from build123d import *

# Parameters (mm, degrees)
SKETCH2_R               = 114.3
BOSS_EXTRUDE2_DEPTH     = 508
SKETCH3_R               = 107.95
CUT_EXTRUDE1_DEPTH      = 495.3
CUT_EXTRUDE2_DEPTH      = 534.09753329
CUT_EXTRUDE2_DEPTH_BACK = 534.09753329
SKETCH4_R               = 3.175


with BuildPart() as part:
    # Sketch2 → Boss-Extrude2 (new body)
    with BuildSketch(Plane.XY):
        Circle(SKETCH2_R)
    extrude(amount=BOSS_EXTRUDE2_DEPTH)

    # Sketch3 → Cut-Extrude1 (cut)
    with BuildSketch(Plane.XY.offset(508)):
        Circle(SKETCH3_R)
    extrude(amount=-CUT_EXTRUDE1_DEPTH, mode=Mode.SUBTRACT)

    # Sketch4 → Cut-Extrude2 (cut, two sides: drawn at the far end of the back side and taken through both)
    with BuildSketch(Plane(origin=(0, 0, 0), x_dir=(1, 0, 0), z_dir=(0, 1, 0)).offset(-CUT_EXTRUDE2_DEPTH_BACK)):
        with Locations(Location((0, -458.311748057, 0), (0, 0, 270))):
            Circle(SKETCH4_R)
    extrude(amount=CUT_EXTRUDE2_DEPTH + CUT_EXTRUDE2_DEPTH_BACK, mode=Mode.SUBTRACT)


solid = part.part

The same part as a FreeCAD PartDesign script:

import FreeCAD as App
import Part
import Sketcher
Q = App.Units.Quantity

doc = App.newDocument("Part")
params = doc.addObject("Spreadsheet::Sheet", "Params")
for row, (alias, value) in enumerate([
    ("sketch1_diameter", "9 in"),
    ("pad1_length", "20 in"),
    ("sketch2_diameter", "8.5 in"),
    ("pocket1_length", "19.5 in"),
    ("sketch3_diameter", "0.25 in"),
], start=1):
    params.set(f"A{row}", alias)
    params.set(f"B{row}", "=" + value)
    params.setAlias(f"B{row}", alias)

body = doc.addObject("PartDesign::Body", "Body")

# Sketch on XY plane
sketch1 = body.newObject("Sketcher::SketchObject", "Sketch")
sketch1.AttachmentSupport = (doc.getObject("XY_Plane"), [""])
sketch1.MapMode = "FlatFace"
sketch1.addGeometry(Part.Circle(App.Vector(0, 0, 0), App.Vector(0, 0, 1), 114), False)
sketch1.addConstraint([
    Sketcher.Constraint("Coincident", 0, 3, -1, 1),
    Sketcher.Constraint("Diameter", 0, Q("9 in")),
])
sketch1.setExpression("Constraints[1]", "Params.sketch1_diameter")
pad1 = body.newObject("PartDesign::Pad", "Pad")
pad1.Profile = sketch1
pad1.setExpression("Length", "Params.pad1_length")

# Sketch on XY plane
sketch2 = body.newObject("Sketcher::SketchObject", "Sketch001")
sketch2.AttachmentSupport = (doc.getObject("XY_Plane"), [""])
sketch2.MapMode = "FlatFace"
sketch2.AttachmentOffset = App.Placement(App.Vector(0, 0, 20 * 25.4), App.Rotation())
sketch2.addGeometry(Part.Circle(App.Vector(0, 0, 0), App.Vector(0, 0, 1), 108), False)
sketch2.addConstraint([
    Sketcher.Constraint("Coincident", 0, 3, -1, 1),
    Sketcher.Constraint("Diameter", 0, Q("8.5 in")),
])
sketch2.setExpression("Constraints[1]", "Params.sketch2_diameter")
pocket1 = body.newObject("PartDesign::Pocket", "Pocket")
pocket1.Profile = sketch2
pocket1.setExpression("Length", "Params.pocket1_length")

# Sketch on XZ plane
sketch3 = body.newObject("Sketcher::SketchObject", "Sketch002")
sketch3.AttachmentSupport = (doc.getObject("XZ_Plane"), [""])
sketch3.MapMode = "FlatFace"
sketch3.addGeometry(Part.Circle(App.Vector(0, 458.3, 0), App.Vector(0, 0, 1), 3.2), False)
sketch3.addConstraint([
    Sketcher.Constraint("PointOnObject", 0, 3, -2),
    Sketcher.Constraint("Diameter", 0, Q("0.25 in")),
    Sketcher.Constraint("DistanceY", -1, 1, 0, 3, 458.311748),
])
sketch3.setExpression("Constraints[1]", "Params.sketch3_diameter")
pocket2 = body.newObject("PartDesign::Pocket", "Pocket001")
pocket2.Profile = sketch3
pocket2.Type = "ThroughAll"
pocket2.Midplane = True

doc.recompute()
